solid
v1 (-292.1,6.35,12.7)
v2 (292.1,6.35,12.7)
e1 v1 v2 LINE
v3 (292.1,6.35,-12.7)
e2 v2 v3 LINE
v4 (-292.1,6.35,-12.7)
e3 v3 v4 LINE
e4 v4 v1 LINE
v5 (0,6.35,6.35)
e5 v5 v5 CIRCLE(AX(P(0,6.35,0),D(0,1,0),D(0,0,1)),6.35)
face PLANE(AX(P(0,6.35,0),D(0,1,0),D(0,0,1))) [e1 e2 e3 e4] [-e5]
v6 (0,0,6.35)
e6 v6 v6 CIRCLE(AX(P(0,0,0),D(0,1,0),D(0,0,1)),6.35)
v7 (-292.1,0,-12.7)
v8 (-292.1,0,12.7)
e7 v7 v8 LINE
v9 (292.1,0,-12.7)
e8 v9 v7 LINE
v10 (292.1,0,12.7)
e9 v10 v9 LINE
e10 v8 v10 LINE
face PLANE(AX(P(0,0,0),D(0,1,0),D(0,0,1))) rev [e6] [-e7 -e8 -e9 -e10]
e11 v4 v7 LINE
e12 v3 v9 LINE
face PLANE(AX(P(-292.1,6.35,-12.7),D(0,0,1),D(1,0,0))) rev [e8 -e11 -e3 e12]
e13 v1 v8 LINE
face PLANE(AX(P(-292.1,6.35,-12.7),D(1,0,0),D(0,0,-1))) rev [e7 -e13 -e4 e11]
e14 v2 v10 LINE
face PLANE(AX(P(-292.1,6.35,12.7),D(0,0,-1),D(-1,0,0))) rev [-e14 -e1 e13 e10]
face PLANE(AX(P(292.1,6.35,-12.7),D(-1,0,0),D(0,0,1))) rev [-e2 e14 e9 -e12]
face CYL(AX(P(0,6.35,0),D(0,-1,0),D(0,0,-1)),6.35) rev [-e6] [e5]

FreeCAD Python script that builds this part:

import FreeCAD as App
import Part
import Sketcher
from FreeCAD import Vector
Q = App.Units.Quantity


def add_polygon(sketch, points):
    """Adds a closed chain of lines whose ends are joined by coincident constraints."""
    first, n = sketch.GeometryCount, len(points)
    for a, b in zip(points, points[1:] + points[:1]):
        sketch.addGeometry(Part.LineSegment(App.Vector(*a, 0), App.Vector(*b, 0)), False)
    for i in range(n):
        sketch.addConstraint(Sketcher.Constraint("Coincident", first + i, 2, first + (i + 1) % n, 1))

doc = App.newDocument("Part")
body = doc.addObject("PartDesign::Body", "Body")

sketch1 = body.newObject("Sketcher::SketchObject", "Sketch")
sketch1.AttachmentSupport = (doc.getObject("XZ_Plane"), [""])
sketch1.MapMode = "FlatFace"
add_polygon(sketch1, [(-292, -13), (-292, 13), (292, 13), (292, -13)])
sketch1.addGeometry(Part.Circle(Vector(0, 0, 0), Vector(0, 0, 1), 6), False)
sketch1.addConstraint(Sketcher.Constraint("Vertical", 0))
sketch1.addConstraint(Sketcher.Constraint("Horizontal", 1))
sketch1.addConstraint(Sketcher.Constraint("Vertical", 2))
sketch1.addConstraint(Sketcher.Constraint("Horizontal", 3))
sketch1.addConstraint(Sketcher.Constraint("Coincident", 4, 3, -1, 1))
sketch1.addConstraint(Sketcher.Constraint("Symmetric", 0, 2, 2, 2, -1, 1))
sketch1.addConstraint(Sketcher.Constraint("Diameter", 4, Q("0.5 in")))
sketch1.addConstraint(Sketcher.Constraint("DistanceX", 1, 1, 1, 2, Q("23 in")))
sketch1.addConstraint(Sketcher.Constraint("DistanceY", 0, 1, 0, 2, Q("1 in")))
pad1 = body.newObject("PartDesign::Pad", "Pad")
pad1.Profile = sketch1
pad1.Length = Q("0.25 in")
pad1.Reversed = True

doc.recompute()
